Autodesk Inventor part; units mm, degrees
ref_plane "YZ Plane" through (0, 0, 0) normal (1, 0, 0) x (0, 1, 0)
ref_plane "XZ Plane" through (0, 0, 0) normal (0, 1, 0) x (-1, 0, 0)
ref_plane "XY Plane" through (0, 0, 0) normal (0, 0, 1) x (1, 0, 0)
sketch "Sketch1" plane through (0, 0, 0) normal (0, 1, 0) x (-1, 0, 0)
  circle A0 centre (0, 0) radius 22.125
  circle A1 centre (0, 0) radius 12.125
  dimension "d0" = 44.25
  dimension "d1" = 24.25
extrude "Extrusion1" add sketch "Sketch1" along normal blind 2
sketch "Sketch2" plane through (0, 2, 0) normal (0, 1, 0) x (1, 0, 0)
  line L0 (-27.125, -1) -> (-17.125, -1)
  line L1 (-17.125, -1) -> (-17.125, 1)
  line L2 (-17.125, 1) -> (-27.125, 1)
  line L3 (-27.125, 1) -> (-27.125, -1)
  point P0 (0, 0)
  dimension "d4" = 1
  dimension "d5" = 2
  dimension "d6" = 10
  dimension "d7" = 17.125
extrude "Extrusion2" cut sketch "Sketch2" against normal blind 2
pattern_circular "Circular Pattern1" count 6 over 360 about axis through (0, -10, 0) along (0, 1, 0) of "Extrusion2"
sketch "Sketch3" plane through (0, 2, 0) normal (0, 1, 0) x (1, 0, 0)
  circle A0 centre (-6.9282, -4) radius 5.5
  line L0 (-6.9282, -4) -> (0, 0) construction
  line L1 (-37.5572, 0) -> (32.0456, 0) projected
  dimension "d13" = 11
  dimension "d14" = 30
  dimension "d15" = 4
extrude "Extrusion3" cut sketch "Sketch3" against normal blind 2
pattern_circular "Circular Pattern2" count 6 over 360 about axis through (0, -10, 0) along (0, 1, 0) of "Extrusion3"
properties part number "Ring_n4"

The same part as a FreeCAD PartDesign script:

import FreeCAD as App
import Part
import Sketcher

V = App.Vector

doc = App.newDocument("Part")
params = doc.addObject("Spreadsheet::Sheet", "Params")
for row, (alias, value) in enumerate([
    ("sketch1_diameter", "44.25 mm"),
    ("sketch1_diameter2", "24.25 mm"),
    ("pad1_length", "2 mm"),
    ("sketch2_width", "10 mm"),
    ("sketch2_height", "2 mm"),
    ("pocket1_length", "2 mm"),
    ("sketch3_diameter", "11 mm"),
    ("pocket2_length", "2 mm"),
], start=1):
    params.set(f"A{row}", alias)
    params.set(f"B{row}", "=" + value)
    params.setAlias(f"B{row}", alias)

body = doc.addObject("PartDesign::Body", "Body")

sketch1 = body.newObject("Sketcher::SketchObject", "Sketch")
sketch1.AttachmentSupport = (doc.getObject("XZ_Plane"), [""])
sketch1.MapMode = "FlatFace"
sketch1.addGeometry([
    Part.Circle(V(0, 0, 0), V(0, 0, 1), 22),
    Part.Circle(V(0, 0, 0), V(0, 0, 1), 12),
], False)
sketch1.addConstraint([
    Sketcher.Constraint("Coincident", 0, 3, -1, 1),
    Sketcher.Constraint("Coincident", 1, 3, -1, 1),
    Sketcher.Constraint("Diameter", 0, 44.25),
    Sketcher.Constraint("Diameter", 1, 24.25),
])
sketch1.setExpression("Constraints[2]", "Params.sketch1_diameter")
sketch1.setExpression("Constraints[3]", "Params.sketch1_diameter2")
pad1 = body.newObject("PartDesign::Pad", "Pad")
pad1.Profile = sketch1
pad1.setExpression("Length", "Params.pad1_length")
pad1.Reversed = True

sketch2 = body.newObject("Sketcher::SketchObject", "Sketch001")
sketch2.AttachmentSupport = (doc.getObject("XZ_Plane"), [""])
sketch2.MapMode = "FlatFace"
sketch2.AttachmentOffset = App.Placement(V(0, 0, -2), App.Rotation())
sketch2.addGeometry([
    Part.LineSegment(V(-27.1, -1, 0), V(-27.1, 1, 0)),
    Part.LineSegment(V(-27.1, 1, 0), V(-17.1, 1, 0)),
    Part.LineSegment(V(-17.1, 1, 0), V(-17.1, -1, 0)),
    Part.LineSegment(V(-17.1, -1, 0), V(-27.1, -1, 0)),
], False)
sketch2.addConstraint([
    Sketcher.Constraint("Coincident", 0, 2, 1, 1),
    Sketcher.Constraint("Coincident", 1, 2, 2, 1),
    Sketcher.Constraint("Coincident", 2, 2, 3, 1),
    Sketcher.Constraint("Coincident", 3, 2, 0, 1),
    Sketcher.Constraint("Vertical", 0),
    Sketcher.Constraint("Horizontal", 1),
    Sketcher.Constraint("Vertical", 2),
    Sketcher.Constraint("Horizontal", 3),
    Sketcher.Constraint("DistanceX", 1, 1, 1, 2, 10.0),
    Sketcher.Constraint("DistanceY", 0, 1, 0, 2, 2.0),
    Sketcher.Constraint("DistanceY", -1, 1, 0, 2, 1.0),
    Sketcher.Constraint("DistanceX", 1, 2, -1, 1, 17.125),
])
sketch2.setExpression("Constraints[8]", "Params.sketch2_width")
sketch2.setExpression("Constraints[9]", "Params.sketch2_height")
pocket1 = body.newObject("PartDesign::Pocket", "Pocket")
pocket1.Profile = sketch2
pocket1.setExpression("Length", "Params.pocket1_length")
pocket1.Reversed = True
doc.recompute()

polarpattern = body.newObject("PartDesign::PolarPattern", "PolarPattern")
polarpattern.Originals = [pocket1]
polarpattern.Axis = (doc.getObject("Y_Axis"), [""])
polarpattern.Angle = 360
polarpattern.Occurrences = 6
body.Tip = polarpattern

sketch3 = body.newObject("Sketcher::SketchObject", "Sketch002")
sketch3.AttachmentSupport = (doc.getObject("XZ_Plane"), [""])
sketch3.MapMode = "FlatFace"
sketch3.AttachmentOffset = App.Placement(V(0, 0, -2), App.Rotation())
sketch3.addGeometry(Part.Circle(V(-7, 4, 0), V(0, 0, 1), 6), False)
sketch3.addConstraint([
    Sketcher.Constraint("Diameter", 0, 11.0),
    Sketcher.Constraint("DistanceY", -1, 1, 0, 3, 4.0),
    Sketcher.Constraint("DistanceX", 0, 3, -1, 1, 6.9282),
])
sketch3.setExpression("Constraints[0]", "Params.sketch3_diameter")
pocket2 = body.newObject("PartDesign::Pocket", "Pocket001")
pocket2.Profile = sketch3
pocket2.setExpression("Length", "Params.pocket2_length")
pocket2.Reversed = True
doc.recompute()

polarpattern2 = body.newObject("PartDesign::PolarPattern", "PolarPattern001")
polarpattern2.Originals = [pocket2]
polarpattern2.Axis = (doc.getObject("Y_Axis"), [""])
polarpattern2.Angle = 360
polarpattern2.Occurrences = 6
body.Tip = polarpattern2

doc.recompute()
